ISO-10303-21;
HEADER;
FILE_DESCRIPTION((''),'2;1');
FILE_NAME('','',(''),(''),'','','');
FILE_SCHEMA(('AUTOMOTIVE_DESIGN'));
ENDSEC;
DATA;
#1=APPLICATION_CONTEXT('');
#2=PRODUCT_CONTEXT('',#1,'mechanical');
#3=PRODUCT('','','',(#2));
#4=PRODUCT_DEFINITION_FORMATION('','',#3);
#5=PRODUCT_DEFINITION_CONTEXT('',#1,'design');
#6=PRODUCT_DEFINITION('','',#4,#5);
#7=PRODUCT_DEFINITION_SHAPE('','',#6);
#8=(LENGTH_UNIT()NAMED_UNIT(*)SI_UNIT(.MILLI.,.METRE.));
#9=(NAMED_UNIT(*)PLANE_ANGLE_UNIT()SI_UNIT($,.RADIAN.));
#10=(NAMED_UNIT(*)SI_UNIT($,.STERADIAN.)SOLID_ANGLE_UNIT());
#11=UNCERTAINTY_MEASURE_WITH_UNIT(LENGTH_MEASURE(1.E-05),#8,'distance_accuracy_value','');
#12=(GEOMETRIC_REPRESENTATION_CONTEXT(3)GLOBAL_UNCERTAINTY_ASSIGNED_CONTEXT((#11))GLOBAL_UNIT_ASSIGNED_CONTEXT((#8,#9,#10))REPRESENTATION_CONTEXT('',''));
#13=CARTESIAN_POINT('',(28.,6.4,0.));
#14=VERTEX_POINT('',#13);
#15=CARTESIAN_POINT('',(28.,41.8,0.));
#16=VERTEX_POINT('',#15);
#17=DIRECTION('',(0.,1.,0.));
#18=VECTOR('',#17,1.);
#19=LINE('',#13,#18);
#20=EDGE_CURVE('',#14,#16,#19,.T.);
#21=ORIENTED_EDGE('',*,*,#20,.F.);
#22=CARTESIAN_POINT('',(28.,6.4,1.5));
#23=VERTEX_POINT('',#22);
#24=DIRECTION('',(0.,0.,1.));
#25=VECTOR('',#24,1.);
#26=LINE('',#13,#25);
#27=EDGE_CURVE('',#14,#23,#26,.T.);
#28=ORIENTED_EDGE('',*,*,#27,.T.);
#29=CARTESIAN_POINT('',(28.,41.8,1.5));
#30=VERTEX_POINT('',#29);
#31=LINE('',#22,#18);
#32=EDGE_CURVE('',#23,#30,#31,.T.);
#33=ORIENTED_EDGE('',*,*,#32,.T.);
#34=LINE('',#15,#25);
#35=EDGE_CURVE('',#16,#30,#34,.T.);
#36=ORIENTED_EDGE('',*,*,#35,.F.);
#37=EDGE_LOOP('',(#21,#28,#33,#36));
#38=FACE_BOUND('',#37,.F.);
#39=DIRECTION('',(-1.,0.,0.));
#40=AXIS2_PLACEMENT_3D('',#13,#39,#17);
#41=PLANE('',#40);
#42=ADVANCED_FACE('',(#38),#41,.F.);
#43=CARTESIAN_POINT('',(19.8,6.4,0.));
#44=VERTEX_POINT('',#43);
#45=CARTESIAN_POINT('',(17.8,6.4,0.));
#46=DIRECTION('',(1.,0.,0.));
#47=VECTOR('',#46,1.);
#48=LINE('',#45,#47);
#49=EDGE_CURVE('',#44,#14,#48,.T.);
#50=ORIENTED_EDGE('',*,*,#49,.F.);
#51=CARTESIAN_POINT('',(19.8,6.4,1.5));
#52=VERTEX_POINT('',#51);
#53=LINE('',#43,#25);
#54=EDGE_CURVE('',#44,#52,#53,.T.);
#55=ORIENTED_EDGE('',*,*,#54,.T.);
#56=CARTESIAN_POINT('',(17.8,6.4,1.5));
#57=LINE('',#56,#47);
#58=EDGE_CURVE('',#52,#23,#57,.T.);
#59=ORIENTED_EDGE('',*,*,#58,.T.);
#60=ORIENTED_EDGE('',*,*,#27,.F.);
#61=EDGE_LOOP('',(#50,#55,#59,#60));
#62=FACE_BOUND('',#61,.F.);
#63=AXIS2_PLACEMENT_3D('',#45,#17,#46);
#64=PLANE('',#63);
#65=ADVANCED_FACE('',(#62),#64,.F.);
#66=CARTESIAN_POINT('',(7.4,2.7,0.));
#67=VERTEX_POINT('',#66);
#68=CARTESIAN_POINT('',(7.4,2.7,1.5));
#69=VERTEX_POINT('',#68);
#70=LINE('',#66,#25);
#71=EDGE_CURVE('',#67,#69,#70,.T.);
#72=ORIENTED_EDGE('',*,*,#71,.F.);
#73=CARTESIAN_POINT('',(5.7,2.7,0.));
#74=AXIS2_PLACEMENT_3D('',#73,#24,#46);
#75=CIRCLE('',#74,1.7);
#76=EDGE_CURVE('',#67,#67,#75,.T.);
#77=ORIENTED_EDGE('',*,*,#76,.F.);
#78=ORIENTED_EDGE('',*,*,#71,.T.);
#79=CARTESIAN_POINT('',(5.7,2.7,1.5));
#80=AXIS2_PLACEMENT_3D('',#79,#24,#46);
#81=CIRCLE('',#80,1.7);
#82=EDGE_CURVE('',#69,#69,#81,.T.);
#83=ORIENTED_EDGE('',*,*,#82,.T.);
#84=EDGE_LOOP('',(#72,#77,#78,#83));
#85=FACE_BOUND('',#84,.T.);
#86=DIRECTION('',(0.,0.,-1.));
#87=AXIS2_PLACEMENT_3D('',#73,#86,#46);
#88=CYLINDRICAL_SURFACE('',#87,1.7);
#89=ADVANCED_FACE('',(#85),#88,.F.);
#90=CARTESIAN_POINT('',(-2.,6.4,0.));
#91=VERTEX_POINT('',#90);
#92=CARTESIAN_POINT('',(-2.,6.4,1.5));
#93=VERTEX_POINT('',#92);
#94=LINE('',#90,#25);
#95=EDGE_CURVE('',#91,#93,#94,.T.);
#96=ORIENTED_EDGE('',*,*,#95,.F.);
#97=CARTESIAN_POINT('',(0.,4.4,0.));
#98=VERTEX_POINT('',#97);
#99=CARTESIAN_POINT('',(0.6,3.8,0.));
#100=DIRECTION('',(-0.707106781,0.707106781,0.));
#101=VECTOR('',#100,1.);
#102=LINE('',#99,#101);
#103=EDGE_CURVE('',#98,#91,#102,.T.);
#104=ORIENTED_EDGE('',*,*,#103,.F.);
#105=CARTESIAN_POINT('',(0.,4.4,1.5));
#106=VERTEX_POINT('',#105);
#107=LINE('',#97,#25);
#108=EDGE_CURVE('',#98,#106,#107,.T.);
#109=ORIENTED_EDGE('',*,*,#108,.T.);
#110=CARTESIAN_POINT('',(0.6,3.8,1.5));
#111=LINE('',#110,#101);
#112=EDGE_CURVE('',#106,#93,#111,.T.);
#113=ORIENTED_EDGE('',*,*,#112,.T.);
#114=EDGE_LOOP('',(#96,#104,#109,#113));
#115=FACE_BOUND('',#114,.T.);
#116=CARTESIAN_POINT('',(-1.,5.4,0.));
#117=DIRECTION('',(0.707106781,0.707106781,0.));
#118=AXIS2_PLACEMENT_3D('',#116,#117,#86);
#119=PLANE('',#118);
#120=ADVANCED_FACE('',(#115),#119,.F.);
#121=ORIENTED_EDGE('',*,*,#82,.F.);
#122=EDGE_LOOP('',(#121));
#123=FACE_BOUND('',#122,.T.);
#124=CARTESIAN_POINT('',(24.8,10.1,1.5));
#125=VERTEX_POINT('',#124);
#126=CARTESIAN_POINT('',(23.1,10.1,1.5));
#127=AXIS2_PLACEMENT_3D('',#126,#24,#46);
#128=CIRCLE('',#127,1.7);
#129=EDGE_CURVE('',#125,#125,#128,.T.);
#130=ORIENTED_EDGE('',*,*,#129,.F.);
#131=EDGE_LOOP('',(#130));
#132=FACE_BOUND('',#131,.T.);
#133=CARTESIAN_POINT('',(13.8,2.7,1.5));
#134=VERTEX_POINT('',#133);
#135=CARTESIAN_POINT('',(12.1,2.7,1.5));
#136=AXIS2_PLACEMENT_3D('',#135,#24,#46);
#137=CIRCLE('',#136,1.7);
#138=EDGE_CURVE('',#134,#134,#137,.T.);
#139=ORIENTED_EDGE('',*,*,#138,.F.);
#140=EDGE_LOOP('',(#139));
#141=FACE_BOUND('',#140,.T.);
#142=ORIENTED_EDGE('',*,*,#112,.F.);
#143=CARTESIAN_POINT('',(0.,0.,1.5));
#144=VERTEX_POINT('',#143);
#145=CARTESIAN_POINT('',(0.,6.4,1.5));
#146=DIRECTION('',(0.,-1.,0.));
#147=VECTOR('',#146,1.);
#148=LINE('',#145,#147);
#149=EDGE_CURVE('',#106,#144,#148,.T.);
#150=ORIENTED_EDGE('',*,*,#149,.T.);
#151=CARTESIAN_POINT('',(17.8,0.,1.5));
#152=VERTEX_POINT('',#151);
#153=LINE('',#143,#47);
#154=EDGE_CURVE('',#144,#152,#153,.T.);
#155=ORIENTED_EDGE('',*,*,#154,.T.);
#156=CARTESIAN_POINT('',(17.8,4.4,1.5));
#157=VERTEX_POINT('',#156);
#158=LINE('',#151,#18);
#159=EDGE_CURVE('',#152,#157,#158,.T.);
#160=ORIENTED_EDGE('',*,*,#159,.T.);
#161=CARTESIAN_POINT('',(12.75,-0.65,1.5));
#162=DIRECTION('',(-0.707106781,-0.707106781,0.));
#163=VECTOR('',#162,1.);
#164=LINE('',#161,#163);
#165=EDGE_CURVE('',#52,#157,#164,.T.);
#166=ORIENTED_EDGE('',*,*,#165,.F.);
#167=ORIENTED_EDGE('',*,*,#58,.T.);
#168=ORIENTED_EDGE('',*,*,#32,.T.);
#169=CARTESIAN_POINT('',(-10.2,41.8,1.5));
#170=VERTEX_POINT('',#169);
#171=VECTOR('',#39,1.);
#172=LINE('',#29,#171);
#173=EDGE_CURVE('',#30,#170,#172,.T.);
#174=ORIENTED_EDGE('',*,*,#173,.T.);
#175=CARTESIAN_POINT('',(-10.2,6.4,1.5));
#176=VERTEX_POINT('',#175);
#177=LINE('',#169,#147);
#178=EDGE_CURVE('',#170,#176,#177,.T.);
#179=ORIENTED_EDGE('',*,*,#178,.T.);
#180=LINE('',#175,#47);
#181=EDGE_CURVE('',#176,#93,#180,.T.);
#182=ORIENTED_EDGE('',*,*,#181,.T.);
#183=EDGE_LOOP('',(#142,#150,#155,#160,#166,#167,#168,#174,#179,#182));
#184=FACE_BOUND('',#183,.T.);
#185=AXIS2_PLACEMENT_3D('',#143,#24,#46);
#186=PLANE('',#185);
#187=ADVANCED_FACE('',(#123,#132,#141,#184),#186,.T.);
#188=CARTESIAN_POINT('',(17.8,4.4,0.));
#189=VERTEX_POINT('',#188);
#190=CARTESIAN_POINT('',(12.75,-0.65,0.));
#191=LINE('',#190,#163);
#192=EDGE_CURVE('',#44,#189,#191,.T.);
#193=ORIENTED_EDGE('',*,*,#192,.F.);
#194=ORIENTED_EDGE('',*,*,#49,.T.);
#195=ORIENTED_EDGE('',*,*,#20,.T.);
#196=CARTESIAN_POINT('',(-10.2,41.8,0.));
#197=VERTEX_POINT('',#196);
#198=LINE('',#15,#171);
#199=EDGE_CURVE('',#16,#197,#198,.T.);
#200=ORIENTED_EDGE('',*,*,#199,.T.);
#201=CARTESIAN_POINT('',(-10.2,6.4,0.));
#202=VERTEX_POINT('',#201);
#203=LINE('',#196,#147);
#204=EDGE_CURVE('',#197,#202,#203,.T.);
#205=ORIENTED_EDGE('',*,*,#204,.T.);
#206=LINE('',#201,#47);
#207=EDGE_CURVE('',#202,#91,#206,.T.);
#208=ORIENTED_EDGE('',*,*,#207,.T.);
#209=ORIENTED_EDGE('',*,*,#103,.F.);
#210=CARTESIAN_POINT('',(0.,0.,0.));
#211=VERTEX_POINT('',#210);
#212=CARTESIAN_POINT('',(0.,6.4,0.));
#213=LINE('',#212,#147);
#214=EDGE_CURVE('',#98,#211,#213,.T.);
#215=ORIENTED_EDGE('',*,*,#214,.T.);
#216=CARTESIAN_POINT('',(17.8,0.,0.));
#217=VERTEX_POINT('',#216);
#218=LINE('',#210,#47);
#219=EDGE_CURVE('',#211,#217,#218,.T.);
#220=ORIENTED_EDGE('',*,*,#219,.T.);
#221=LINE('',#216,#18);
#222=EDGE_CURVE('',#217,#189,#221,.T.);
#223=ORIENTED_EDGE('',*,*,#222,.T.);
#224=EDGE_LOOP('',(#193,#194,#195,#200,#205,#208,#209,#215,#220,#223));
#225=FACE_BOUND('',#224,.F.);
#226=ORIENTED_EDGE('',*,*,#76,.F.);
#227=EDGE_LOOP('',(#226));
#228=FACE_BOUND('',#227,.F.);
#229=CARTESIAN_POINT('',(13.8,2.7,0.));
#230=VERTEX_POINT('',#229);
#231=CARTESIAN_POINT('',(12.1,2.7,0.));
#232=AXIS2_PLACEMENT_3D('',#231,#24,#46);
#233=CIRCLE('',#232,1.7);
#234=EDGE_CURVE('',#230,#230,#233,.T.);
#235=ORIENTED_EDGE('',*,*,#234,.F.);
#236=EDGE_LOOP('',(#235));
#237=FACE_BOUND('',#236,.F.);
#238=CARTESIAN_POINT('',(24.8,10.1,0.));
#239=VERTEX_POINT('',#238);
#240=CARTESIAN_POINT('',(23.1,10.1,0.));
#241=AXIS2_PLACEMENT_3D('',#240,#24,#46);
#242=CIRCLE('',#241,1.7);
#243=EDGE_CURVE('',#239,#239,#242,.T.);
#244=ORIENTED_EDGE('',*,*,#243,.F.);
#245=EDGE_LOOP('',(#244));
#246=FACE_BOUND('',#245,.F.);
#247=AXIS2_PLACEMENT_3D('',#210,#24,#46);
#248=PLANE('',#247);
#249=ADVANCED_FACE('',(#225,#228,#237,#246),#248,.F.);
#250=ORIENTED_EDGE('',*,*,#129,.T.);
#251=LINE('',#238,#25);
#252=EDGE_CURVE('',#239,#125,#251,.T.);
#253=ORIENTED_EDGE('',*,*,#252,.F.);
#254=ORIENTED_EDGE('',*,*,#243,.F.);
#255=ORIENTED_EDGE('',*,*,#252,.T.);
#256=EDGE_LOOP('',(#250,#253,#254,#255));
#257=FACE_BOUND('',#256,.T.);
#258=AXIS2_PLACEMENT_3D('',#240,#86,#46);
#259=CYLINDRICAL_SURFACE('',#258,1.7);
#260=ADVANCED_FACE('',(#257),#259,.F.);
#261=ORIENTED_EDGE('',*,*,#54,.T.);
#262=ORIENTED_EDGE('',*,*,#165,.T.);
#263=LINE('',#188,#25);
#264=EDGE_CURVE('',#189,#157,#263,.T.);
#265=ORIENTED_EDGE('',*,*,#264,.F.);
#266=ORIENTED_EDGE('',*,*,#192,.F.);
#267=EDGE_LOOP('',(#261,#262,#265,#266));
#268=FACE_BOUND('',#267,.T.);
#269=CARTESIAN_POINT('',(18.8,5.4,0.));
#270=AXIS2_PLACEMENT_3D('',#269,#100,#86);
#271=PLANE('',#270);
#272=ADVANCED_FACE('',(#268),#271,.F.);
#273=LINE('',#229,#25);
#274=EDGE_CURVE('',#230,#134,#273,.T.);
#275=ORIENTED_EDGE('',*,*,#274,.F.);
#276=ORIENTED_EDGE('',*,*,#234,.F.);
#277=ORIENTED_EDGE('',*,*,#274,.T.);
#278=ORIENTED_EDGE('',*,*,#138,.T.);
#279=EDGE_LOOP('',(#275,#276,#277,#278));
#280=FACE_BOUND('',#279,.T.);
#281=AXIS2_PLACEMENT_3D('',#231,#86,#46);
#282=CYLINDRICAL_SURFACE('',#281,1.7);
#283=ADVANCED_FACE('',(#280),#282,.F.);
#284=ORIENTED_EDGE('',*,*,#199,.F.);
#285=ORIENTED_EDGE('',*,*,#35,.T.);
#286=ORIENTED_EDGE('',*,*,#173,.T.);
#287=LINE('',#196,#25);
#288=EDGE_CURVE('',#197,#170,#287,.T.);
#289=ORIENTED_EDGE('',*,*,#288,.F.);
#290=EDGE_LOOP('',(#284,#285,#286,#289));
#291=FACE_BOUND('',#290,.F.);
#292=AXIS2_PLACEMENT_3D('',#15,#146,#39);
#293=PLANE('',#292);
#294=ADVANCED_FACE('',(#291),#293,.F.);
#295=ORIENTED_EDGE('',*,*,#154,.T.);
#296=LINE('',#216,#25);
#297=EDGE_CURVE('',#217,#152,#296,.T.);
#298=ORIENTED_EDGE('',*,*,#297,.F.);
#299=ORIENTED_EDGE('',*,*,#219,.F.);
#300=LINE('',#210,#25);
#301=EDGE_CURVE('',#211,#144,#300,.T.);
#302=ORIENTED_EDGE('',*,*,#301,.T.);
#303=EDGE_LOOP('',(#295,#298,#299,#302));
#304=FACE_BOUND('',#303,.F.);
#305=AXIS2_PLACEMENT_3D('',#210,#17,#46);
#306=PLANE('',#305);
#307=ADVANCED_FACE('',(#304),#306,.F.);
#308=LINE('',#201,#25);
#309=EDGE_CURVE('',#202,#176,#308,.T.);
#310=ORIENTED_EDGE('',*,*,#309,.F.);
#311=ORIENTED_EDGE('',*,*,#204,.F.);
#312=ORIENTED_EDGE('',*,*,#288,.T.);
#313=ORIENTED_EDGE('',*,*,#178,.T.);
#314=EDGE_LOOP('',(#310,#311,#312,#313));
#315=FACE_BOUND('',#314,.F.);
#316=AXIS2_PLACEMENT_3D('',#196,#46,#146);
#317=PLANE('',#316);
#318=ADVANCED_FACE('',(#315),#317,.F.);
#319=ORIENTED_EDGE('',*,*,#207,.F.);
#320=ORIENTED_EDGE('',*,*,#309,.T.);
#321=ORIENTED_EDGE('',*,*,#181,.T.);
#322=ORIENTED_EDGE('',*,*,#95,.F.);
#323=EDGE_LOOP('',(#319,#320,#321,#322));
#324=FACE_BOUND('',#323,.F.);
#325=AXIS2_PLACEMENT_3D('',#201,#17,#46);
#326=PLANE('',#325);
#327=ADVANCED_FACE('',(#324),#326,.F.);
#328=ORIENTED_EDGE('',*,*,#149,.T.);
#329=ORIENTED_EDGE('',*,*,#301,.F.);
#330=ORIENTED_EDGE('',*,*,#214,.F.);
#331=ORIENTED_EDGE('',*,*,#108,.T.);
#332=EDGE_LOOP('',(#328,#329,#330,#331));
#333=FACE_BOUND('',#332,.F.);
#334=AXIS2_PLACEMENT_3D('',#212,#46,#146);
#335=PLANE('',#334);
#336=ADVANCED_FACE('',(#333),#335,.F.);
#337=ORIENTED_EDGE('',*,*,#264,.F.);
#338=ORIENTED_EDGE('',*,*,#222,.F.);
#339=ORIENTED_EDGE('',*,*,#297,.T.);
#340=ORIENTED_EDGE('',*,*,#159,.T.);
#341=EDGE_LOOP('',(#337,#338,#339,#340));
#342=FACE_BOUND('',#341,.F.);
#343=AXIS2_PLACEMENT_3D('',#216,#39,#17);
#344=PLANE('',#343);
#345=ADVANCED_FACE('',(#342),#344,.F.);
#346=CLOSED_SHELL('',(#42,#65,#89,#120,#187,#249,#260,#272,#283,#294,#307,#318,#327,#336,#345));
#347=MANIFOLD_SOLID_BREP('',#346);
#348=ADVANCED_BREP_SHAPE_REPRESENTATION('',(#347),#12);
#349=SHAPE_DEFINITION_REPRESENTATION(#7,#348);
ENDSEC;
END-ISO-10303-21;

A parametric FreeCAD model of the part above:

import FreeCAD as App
import Part
import Sketcher
from FreeCAD import Vector


def edges_at(feature, points):
    """Names of the edges that pass closest to the given points."""
    edges = feature.Shape.Edges
    near = lambda p: min(range(len(edges)), key=lambda i: edges[i].distToShape(Part.Vertex(*p))[0])
    return sorted({f"Edge{near(p) + 1}" for p in points})

doc = App.newDocument("Part")
body = doc.addObject("PartDesign::Body", "Body")

# Sketch on XY plane
sketch1 = body.newObject("Sketcher::SketchObject", "Sketch")
sketch1.AttachmentSupport = (doc.getObject("XY_Plane"), [""])
sketch1.MapMode = "FlatFace"
sketch1.addGeometry(Part.LineSegment(Vector(0, 6.4, 0), Vector(0, 0, 0)), False)
sketch1.addGeometry(Part.LineSegment(Vector(0, 0, 0), Vector(17.8, 0, 0)), False)
sketch1.addGeometry(Part.LineSegment(Vector(17.8, 0, 0), Vector(17.8, 6.4, 0)), False)
sketch1.addGeometry(Part.LineSegment(Vector(17.8, 6.4, 0), Vector(28, 6.4, 0)), False)
sketch1.addGeometry(Part.LineSegment(Vector(28, 6.4, 0), Vector(28, 41.8, 0)), False)
sketch1.addGeometry(Part.LineSegment(Vector(28, 41.8, 0), Vector(-10.2, 41.8, 0)), False)
sketch1.addGeometry(Part.LineSegment(Vector(-10.2, 41.8, 0), Vector(-10.2, 6.4, 0)), False)
sketch1.addGeometry(Part.LineSegment(Vector(-10.2, 6.4, 0), Vector(0, 6.4, 0)), False)
sketch1.addGeometry(Part.Circle(Vector(5.7, 2.7, 0), Vector(0, 0, 1), 1.7), False)
sketch1.addGeometry(Part.Circle(Vector(12.1, 2.7, 0), Vector(0, 0, 1), 1.7), False)
sketch1.addGeometry(Part.Circle(Vector(23.1, 10.1, 0), Vector(0, 0, 1), 1.7), False)
sketch1.addConstraint(Sketcher.Constraint("Coincident", 0, 2, 1, 1))
sketch1.addConstraint(Sketcher.Constraint("Coincident", 1, 2, 2, 1))
sketch1.addConstraint(Sketcher.Constraint("Coincident", 2, 2, 3, 1))
sketch1.addConstraint(Sketcher.Constraint("Coincident", 3, 2, 4, 1))
sketch1.addConstraint(Sketcher.Constraint("Coincident", 4, 2, 5, 1))
sketch1.addConstraint(Sketcher.Constraint("Coincident", 5, 2, 6, 1))
sketch1.addConstraint(Sketcher.Constraint("Coincident", 6, 2, 7, 1))
sketch1.addConstraint(Sketcher.Constraint("Coincident", 7, 2, 0, 1))
sketch1.addConstraint(Sketcher.Constraint("Vertical", 0))
sketch1.addConstraint(Sketcher.Constraint("Horizontal", 1))
sketch1.addConstraint(Sketcher.Constraint("Vertical", 2))
sketch1.addConstraint(Sketcher.Constraint("Horizontal", 3))
sketch1.addConstraint(Sketcher.Constraint("Vertical", 4))
sketch1.addConstraint(Sketcher.Constraint("Horizontal", 5))
sketch1.addConstraint(Sketcher.Constraint("Vertical", 6))
sketch1.addConstraint(Sketcher.Constraint("Horizontal", 7))
sketch1.addConstraint(Sketcher.Constraint("Coincident", 0, 2, -1, 1))
sketch1.addConstraint(Sketcher.Constraint("Equal", 8, 9))
sketch1.addConstraint(Sketcher.Constraint("Equal", 9, 10))
sketch1.addConstraint(Sketcher.Constraint("Horizontal", 8, 3, 9, 3))
sketch1.addConstraint(Sketcher.Constraint("Horizontal", 3, 2, 6, 2))
sketch1.addConstraint(Sketcher.Constraint("Equal", 3, 7))
sketch1.addConstraint(Sketcher.Constraint("Diameter", 8, 3.4))
sketch1.addConstraint(Sketcher.Constraint("DistanceX", 1, 1, 1, 2, 17.8))
sketch1.addConstraint(Sketcher.Constraint("DistanceX", 3, 1, 3, 2, 10.2))
sketch1.addConstraint(Sketcher.Constraint("DistanceY", 0, 2, 0, 1, 6.4))
sketch1.addConstraint(Sketcher.Constraint("DistanceY", 4, 1, 4, 2, 35.4))
sketch1.addConstraint(Sketcher.Constraint("DistanceX", -1, 1, 8, 3, 5.7))
sketch1.addConstraint(Sketcher.Constraint("DistanceY", -1, 1, 8, 3, 2.7))
sketch1.addConstraint(Sketcher.Constraint("DistanceX", 8, 3, 9, 3, 6.4))
sketch1.addConstraint(Sketcher.Constraint("DistanceY", 2, 2, 10, 3, 3.7))
sketch1.addConstraint(Sketcher.Constraint("DistanceX", 10, 3, 3, 2, 4.9))
pad1 = body.newObject("PartDesign::Pad", "Pad")
pad1.Profile = sketch1
pad1.Length = 1.5
doc.recompute()

chamfer = body.newObject("PartDesign::Chamfer", "Chamfer")
chamfer.Base = (pad1, edges_at(pad1, [(17.8, 6.4, 0.75), (0, 6.4, 0.75)]))
chamfer.Size = 2

doc.recompute()
